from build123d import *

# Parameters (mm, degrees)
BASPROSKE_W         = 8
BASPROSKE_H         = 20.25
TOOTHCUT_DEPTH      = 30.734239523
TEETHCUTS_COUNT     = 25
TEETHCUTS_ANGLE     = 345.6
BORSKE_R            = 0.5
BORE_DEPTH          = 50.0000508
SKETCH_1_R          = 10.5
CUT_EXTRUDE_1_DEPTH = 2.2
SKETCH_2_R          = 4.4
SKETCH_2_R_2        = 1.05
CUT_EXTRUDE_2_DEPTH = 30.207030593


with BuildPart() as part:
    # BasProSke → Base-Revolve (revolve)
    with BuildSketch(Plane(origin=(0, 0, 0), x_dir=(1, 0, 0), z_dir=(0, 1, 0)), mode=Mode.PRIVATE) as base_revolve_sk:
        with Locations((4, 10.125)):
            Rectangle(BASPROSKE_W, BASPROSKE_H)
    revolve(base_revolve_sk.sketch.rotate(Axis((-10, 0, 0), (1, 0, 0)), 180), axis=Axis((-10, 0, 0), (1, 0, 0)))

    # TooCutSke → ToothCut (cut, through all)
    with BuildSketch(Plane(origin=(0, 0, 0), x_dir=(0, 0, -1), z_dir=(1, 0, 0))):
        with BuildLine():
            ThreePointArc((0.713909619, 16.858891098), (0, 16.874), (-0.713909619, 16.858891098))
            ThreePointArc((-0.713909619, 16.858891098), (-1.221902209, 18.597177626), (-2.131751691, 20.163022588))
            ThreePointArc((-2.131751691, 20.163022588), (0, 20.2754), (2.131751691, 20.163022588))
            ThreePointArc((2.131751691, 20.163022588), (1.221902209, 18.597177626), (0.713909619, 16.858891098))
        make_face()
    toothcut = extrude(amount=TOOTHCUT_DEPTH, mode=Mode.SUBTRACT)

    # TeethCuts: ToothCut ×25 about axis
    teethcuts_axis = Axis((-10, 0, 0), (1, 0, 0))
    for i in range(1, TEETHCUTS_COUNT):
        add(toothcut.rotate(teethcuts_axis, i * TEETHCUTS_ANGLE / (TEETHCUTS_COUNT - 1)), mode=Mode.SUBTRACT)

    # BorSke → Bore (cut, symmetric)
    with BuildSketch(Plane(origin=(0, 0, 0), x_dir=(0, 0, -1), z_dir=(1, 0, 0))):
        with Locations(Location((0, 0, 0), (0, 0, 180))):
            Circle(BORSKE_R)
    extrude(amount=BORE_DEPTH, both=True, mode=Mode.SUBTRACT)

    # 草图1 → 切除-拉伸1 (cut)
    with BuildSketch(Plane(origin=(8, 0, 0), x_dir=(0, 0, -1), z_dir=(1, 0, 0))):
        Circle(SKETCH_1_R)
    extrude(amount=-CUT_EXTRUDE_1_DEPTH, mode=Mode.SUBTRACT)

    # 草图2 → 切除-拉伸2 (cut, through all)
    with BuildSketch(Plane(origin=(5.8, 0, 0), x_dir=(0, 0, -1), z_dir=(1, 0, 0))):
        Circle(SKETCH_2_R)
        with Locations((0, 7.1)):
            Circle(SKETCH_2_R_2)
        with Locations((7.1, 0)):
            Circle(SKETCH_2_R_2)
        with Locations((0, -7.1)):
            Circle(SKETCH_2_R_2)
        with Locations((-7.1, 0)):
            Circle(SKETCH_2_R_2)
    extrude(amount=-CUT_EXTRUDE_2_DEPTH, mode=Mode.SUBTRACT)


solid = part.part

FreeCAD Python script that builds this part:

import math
import FreeCAD as App
import Part
import Sketcher

V = App.Vector


def add_polygon(sketch, points):
    """Adds a closed chain of lines whose ends are joined by coincident constraints."""
    first, n = sketch.GeometryCount, len(points)
    for a, b in zip(points, points[1:] + points[:1]):
        sketch.addGeometry(Part.LineSegment(App.Vector(*a, 0), App.Vector(*b, 0)), False)
    for i in range(n):
        sketch.addConstraint(Sketcher.Constraint("Coincident", first + i, 2, first + (i + 1) % n, 1))

doc = App.newDocument("Part")
params = doc.addObject("Spreadsheet::Sheet", "Params")
for row, (alias, value) in enumerate([
    ("sketch1_width", "8 mm"),
    ("sketch1_height", "20.25 mm"),
    ("revolution_angle", "360 deg"),
    ("sketch2_radius", "7.5 mm"),
    ("sketch3_diameter", "1 mm"),
    ("pocket2_length", "100.000102 mm"),
    ("sketch4_diameter", "21 mm"),
    ("pocket3_length", "2.2 mm"),
    ("sketch5_diameter", "8.8 mm"),
    ("sketch5_diameter2", "2.1 mm"),
], start=1):
    params.set(f"A{row}", alias)
    params.set(f"B{row}", "=" + value)
    params.setAlias(f"B{row}", alias)

body = doc.addObject("PartDesign::Body", "Body")

sketch1 = body.newObject("Sketcher::SketchObject", "Sketch")
sketch1.AttachmentSupport = (doc.getObject("XZ_Plane"), [""])
sketch1.MapMode = "FlatFace"
add_polygon(sketch1, [(0, -20), (0, 0), (8, 0), (8, -20)])
sketch1.addConstraint([
    Sketcher.Constraint("Vertical", 0),
    Sketcher.Constraint("Horizontal", 1),
    Sketcher.Constraint("Vertical", 2),
    Sketcher.Constraint("Horizontal", 3),
    Sketcher.Constraint("Coincident", 0, 2, -1, 1),
    Sketcher.Constraint("DistanceX", 1, 1, 1, 2, 8.0),
    Sketcher.Constraint("DistanceY", 0, 1, 0, 2, 20.25),
])
sketch1.setExpression("Constraints[9]", "Params.sketch1_width")
sketch1.setExpression("Constraints[10]", "Params.sketch1_height")
revolution = body.newObject("PartDesign::Revolution", "Revolution")
revolution.Profile = sketch1
revolution.ReferenceAxis = (sketch1, ["H_Axis"])
revolution.setExpression("Angle", "Params.revolution_angle")

sketch2 = body.newObject("Sketcher::SketchObject", "Sketch001")
sketch2.AttachmentSupport = (doc.getObject("YZ_Plane"), [""])
sketch2.MapMode = "FlatFace"
sketch2.addGeometry([
    Part.ArcOfCircle(Part.Circle(V(0, 0, 0), V(0, 0, 1), 16.9), math.radians(-2.42), math.radians(2.42)),
    Part.ArcOfCircle(Part.Circle(V(15.6, -8.1, 0), V(0, 0, 1), 7.5), math.radians(53), math.radians(81)),
    Part.ArcOfCircle(Part.Circle(V(0, 0, 0), V(0, 0, 1), 20.3), math.radians(-6.04), math.radians(6.04)),
    Part.ArcOfCircle(Part.Circle(V(15.6, 8.1, 0), V(0, 0, 1), 7.5), math.radians(-81), math.radians(-53)),
], False)
sketch2.addConstraint([
    Sketcher.Constraint("Coincident", 0, 1, 1, 2),
    Sketcher.Constraint("Coincident", 1, 1, 2, 1),
    Sketcher.Constraint("Coincident", 2, 2, 3, 2),
    Sketcher.Constraint("Coincident", 3, 1, 0, 2),
    Sketcher.Constraint("Coincident", 0, 3, -1, 1),
    Sketcher.Constraint("Coincident", 2, 3, -1, 1),
    Sketcher.Constraint("Equal", 1, 3),
    Sketcher.Constraint("Symmetric", 1, 3, 3, 3, -1),
    Sketcher.Constraint("Radius", 1, 7.5),
    Sketcher.Constraint("Radius", 0, 16.874),
    Sketcher.Constraint("Radius", 2, 20.2754),
    Sketcher.Constraint("DistanceY", 1, 3, -1, 1, 8.114141),
    Sketcher.Constraint("DistanceX", -1, 1, 0, 1, 16.858891),
])
sketch2.setExpression("Constraints[8]", "Params.sketch2_radius")
pocket1 = body.newObject("PartDesign::Pocket", "Pocket")
pocket1.Profile = sketch2
pocket1.Type = "ThroughAll"
pocket1.Reversed = True
doc.recompute()

polarpattern = body.newObject("PartDesign::PolarPattern", "PolarPattern")
polarpattern.Originals = [pocket1]
polarpattern.Axis = (doc.getObject("X_Axis"), [""])
polarpattern.Angle = 360
polarpattern.Occurrences = 25
body.Tip = polarpattern

sketch3 = body.newObject("Sketcher::SketchObject", "Sketch002")
sketch3.AttachmentSupport = (doc.getObject("YZ_Plane"), [""])
sketch3.MapMode = "FlatFace"
sketch3.addGeometry(Part.Circle(V(0, 0, 0), V(0, 0, 1), 0.5), False)
sketch3.addConstraint([
    Sketcher.Constraint("Coincident", 0, 3, -1, 1),
    Sketcher.Constraint("Diameter", 0, 1.0),
])
sketch3.setExpression("Constraints[1]", "Params.sketch3_diameter")
pocket2 = body.newObject("PartDesign::Pocket", "Pocket001")
pocket2.Profile = sketch3
pocket2.setExpression("Length", "Params.pocket2_length")
pocket2.Midplane = True

sketch4 = body.newObject("Sketcher::SketchObject", "Sketch003")
sketch4.AttachmentSupport = (doc.getObject("YZ_Plane"), [""])
sketch4.MapMode = "FlatFace"
sketch4.AttachmentOffset = App.Placement(V(0, 0, 8), App.Rotation())
sketch4.addGeometry(Part.Circle(V(0, 0, 0), V(0, 0, 1), 10), False)
sketch4.addConstraint([
    Sketcher.Constraint("Coincident", 0, 3, -1, 1),
    Sketcher.Constraint("Diameter", 0, 21.0),
])
sketch4.setExpression("Constraints[1]", "Params.sketch4_diameter")
pocket3 = body.newObject("PartDesign::Pocket", "Pocket002")
pocket3.Profile = sketch4
pocket3.setExpression("Length", "Params.pocket3_length")

sketch5 = body.newObject("Sketcher::SketchObject", "Sketch004")
sketch5.AttachmentSupport = (doc.getObject("YZ_Plane"), [""])
sketch5.MapMode = "FlatFace"
sketch5.AttachmentOffset = App.Placement(V(0, 0, 5.8), App.Rotation())
sketch5.addGeometry([
    Part.Circle(V(0, 0, 0), V(0, 0, 1), 4.4),
    Part.Circle(V(7.1, 0, 0), V(0, 0, 1), 1.1),
    Part.Circle(V(0, -7.1, 0), V(0, 0, 1), 1.1),
    Part.Circle(V(-7.1, 0, 0), V(0, 0, 1), 1.1),
    Part.Circle(V(0, 7.1, 0), V(0, 0, 1), 1.1),
], False)
sketch5.addConstraint([
    Sketcher.Constraint("Coincident", 0, 3, -1, 1),
    Sketcher.Constraint("Equal", 1, 2),
    Sketcher.Constraint("Equal", 2, 3),
    Sketcher.Constraint("Equal", 3, 4),
    Sketcher.Constraint("Symmetric", 1, 3, 3, 3, -1, 1),
    Sketcher.Constraint("Symmetric", 2, 3, 4, 3, -1, 1),
    Sketcher.Constraint("PointOnObject", 1, 3, -1),
    Sketcher.Constraint("PointOnObject", 2, 3, -2),
    Sketcher.Constraint("Diameter", 0, 8.8),
    Sketcher.Constraint("Diameter", 1, 2.1),
    Sketcher.Constraint("DistanceX", -1, 1, 1, 3, 7.1),
    Sketcher.Constraint("DistanceY", 2, 3, -1, 1, 7.1),
])
sketch5.setExpression("Constraints[8]", "Params.sketch5_diameter")
sketch5.setExpression("Constraints[9]", "Params.sketch5_diameter2")
pocket4 = body.newObject("PartDesign::Pocket", "Pocket003")
pocket4.Profile = sketch5
pocket4.Type = "ThroughAll"

doc.recompute()
